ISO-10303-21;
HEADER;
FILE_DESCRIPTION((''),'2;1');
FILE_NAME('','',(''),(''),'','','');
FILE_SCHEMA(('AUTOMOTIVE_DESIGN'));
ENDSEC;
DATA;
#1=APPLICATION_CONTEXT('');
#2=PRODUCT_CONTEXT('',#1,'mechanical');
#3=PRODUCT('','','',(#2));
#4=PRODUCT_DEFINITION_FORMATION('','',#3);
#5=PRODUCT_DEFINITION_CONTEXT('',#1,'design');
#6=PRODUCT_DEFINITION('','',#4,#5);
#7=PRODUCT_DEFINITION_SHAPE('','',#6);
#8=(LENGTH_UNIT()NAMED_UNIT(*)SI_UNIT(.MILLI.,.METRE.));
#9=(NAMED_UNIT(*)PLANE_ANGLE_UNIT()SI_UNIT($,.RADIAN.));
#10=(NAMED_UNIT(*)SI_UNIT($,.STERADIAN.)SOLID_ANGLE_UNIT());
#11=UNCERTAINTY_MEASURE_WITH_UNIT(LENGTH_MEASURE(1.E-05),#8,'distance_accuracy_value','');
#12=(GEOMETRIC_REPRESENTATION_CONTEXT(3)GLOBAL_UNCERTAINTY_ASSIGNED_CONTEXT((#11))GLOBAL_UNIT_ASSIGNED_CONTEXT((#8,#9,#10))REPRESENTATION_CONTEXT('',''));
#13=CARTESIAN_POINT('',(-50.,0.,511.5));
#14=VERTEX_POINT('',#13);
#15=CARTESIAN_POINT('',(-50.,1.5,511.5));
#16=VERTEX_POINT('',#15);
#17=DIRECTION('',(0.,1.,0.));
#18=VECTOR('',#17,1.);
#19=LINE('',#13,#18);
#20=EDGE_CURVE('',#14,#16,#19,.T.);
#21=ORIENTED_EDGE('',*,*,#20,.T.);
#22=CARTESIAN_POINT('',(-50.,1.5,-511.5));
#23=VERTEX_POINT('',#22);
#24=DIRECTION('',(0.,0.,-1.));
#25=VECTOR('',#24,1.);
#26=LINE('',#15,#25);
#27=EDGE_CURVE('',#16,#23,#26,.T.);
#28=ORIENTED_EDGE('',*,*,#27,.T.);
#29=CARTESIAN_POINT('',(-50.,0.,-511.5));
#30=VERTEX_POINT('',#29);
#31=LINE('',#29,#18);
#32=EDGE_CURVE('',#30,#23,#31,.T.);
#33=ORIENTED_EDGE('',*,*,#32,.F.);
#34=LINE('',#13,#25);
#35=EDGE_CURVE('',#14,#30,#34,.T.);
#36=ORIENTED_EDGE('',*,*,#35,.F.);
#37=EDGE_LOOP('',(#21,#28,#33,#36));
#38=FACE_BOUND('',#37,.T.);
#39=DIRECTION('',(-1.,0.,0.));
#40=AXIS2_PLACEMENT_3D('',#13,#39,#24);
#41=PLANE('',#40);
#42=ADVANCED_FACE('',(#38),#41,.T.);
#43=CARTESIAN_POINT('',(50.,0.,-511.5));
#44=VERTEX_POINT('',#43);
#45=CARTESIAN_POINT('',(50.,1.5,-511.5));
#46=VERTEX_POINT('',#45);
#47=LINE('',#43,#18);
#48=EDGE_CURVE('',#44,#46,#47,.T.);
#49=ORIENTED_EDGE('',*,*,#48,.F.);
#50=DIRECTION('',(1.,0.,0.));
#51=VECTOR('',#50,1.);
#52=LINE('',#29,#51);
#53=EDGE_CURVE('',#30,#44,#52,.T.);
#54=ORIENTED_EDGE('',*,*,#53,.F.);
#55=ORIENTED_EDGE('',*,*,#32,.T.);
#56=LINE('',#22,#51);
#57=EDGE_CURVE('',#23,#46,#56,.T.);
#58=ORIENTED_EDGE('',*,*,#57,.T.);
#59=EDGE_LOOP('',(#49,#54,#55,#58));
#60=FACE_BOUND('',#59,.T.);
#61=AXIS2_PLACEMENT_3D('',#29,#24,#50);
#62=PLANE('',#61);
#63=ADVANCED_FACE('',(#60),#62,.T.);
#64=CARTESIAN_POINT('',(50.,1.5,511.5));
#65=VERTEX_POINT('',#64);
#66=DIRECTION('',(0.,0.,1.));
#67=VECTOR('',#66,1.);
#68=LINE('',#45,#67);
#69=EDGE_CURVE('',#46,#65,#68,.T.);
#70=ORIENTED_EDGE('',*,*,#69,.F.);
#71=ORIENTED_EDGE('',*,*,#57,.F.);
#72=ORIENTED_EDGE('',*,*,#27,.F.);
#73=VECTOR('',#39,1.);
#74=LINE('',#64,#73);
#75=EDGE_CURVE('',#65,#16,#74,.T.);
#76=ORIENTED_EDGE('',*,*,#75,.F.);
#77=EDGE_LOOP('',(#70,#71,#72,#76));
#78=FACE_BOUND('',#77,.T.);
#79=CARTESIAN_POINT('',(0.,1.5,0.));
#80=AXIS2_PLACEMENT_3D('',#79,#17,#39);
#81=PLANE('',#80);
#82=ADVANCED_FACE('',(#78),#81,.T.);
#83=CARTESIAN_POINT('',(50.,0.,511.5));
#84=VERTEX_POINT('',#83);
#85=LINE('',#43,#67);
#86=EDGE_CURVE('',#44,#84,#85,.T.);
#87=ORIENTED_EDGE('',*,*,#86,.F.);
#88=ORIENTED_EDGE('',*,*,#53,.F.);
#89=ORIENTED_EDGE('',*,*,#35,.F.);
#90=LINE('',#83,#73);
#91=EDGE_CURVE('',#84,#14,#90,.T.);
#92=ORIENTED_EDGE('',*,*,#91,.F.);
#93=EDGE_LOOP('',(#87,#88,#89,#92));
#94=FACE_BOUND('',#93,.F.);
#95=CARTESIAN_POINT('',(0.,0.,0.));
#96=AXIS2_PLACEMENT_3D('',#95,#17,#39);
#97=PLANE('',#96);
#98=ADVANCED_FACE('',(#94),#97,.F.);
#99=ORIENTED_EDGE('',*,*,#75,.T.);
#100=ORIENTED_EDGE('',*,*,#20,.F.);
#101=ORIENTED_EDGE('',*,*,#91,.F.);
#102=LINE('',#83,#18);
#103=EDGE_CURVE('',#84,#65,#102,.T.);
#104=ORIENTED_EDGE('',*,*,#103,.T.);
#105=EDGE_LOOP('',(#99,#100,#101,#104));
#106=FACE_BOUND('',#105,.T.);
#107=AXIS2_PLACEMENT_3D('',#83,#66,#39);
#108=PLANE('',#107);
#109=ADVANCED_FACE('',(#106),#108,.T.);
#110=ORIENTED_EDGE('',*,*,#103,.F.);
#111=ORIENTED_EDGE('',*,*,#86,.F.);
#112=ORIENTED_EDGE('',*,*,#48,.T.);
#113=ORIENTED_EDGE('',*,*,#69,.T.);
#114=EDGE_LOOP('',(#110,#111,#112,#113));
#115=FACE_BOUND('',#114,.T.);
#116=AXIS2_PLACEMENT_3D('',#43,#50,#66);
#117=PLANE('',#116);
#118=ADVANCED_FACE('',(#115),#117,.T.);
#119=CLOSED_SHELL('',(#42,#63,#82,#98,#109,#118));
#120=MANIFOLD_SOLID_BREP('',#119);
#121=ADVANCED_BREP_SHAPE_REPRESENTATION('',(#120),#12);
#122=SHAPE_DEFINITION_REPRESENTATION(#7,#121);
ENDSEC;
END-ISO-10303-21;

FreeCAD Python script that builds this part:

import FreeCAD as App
import Part
import Sketcher
from FreeCAD import Vector
Q = App.Units.Quantity

doc = App.newDocument("Part")
params = doc.addObject("Spreadsheet::Sheet", "Params")
for row, (alias, value) in enumerate([
    ("sketch1_width", "100 mm"),
    ("sketch1_height", "1023 mm"),
    ("pad1_length", "1.5 mm"),
], start=1):
    params.set(f"A{row}", alias)
    params.set(f"B{row}", "=" + value)
    params.setAlias(f"B{row}", alias)

body = doc.addObject("PartDesign::Body", "Body")

# Sketch on XZ plane
sketch1 = body.newObject("Sketcher::SketchObject", "Sketch")
sketch1.AttachmentSupport = (doc.getObject("XZ_Plane"), [""])
sketch1.MapMode = "FlatFace"
sketch1.addGeometry([
    Part.LineSegment(Vector(-50, 511.5, 0), Vector(50, 511.5, 0)),
    Part.LineSegment(Vector(50, 511.5, 0), Vector(50, -511.5, 0)),
    Part.LineSegment(Vector(50, -511.5, 0), Vector(-50, -511.5, 0)),
    Part.LineSegment(Vector(-50, -511.5, 0), Vector(-50, 511.5, 0)),
], False)
sketch1.addConstraint([
    Sketcher.Constraint("Coincident", 0, 2, 1, 1),
    Sketcher.Constraint("Coincident", 1, 2, 2, 1),
    Sketcher.Constraint("Coincident", 2, 2, 3, 1),
    Sketcher.Constraint("Coincident", 3, 2, 0, 1),
    Sketcher.Constraint("Horizontal", 0),
    Sketcher.Constraint("Vertical", 1),
    Sketcher.Constraint("Horizontal", 2),
    Sketcher.Constraint("Vertical", 3),
    Sketcher.Constraint("Symmetric", 0, 2, 2, 2, -1, 1),
    Sketcher.Constraint("DistanceX", 0, 1, 0, 2, Q("100 mm")),
    Sketcher.Constraint("DistanceY", 1, 2, 1, 1, Q("1023 mm")),
])
sketch1.setExpression("Constraints[9]", "Params.sketch1_width")
sketch1.setExpression("Constraints[10]", "Params.sketch1_height")
pad1 = body.newObject("PartDesign::Pad", "Pad")
pad1.Profile = sketch1
pad1.setExpression("Length", "Params.pad1_length")
pad1.Reversed = True

doc.recompute()
